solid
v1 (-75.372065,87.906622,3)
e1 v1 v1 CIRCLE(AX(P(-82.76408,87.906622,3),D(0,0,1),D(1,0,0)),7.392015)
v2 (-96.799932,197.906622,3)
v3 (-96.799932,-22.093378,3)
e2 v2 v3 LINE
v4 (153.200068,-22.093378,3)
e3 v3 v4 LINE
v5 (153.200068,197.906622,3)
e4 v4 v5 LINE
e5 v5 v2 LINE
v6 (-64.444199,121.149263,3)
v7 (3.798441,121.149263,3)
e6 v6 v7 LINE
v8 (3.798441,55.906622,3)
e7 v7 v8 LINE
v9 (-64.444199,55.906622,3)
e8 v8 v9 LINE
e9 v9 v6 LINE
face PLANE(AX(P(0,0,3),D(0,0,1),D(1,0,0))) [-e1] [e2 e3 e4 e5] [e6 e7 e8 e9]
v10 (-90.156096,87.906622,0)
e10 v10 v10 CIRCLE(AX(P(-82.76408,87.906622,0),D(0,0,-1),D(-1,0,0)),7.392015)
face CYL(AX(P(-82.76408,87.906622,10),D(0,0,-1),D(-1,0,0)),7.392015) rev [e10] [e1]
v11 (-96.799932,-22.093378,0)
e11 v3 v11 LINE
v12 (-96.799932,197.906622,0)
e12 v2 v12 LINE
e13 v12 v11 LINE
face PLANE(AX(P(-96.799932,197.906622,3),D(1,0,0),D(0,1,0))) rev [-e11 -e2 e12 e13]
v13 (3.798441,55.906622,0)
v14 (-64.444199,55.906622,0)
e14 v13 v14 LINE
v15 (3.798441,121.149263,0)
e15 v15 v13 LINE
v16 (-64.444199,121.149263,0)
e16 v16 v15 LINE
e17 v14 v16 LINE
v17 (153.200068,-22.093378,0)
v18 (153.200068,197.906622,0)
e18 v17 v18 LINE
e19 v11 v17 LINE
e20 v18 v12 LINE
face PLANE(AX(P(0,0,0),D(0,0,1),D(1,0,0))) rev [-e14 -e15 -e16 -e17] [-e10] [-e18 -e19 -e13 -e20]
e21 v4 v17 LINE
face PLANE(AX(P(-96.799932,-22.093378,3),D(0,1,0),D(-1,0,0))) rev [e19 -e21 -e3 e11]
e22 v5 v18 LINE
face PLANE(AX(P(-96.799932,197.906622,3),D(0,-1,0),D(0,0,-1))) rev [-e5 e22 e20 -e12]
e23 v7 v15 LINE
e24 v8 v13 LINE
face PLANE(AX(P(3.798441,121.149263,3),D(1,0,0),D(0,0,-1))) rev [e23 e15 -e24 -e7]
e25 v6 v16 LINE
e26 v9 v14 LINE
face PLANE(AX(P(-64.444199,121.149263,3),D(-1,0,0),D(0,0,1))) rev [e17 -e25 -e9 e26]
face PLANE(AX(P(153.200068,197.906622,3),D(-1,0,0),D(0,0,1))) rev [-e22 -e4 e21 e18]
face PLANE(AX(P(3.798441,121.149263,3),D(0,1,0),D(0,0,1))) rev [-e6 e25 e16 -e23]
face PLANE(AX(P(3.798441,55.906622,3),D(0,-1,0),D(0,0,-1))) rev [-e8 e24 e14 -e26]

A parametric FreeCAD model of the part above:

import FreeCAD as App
import Part
import Sketcher

V = App.Vector


def add_polygon(sketch, points):
    """Adds a closed chain of lines whose ends are joined by coincident constraints."""
    first, n = sketch.GeometryCount, len(points)
    for a, b in zip(points, points[1:] + points[:1]):
        sketch.addGeometry(Part.LineSegment(App.Vector(*a, 0), App.Vector(*b, 0)), False)
    for i in range(n):
        sketch.addConstraint(Sketcher.Constraint("Coincident", first + i, 2, first + (i + 1) % n, 1))

doc = App.newDocument("Part")
body = doc.addObject("PartDesign::Body", "Body")

# Sketch on XY plane
sketch1 = body.newObject("Sketcher::SketchObject", "Sketch")
sketch1.AttachmentSupport = (doc.getObject("XY_Plane"), [""])
sketch1.MapMode = "FlatFace"
add_polygon(sketch1, [(-97, 198), (-97, -22), (153, -22), (153, 198)])  # lines 0-3
sketch1.addConstraint([
    Sketcher.Constraint("Vertical", 0),
    Sketcher.Constraint("Horizontal", 1),
    Sketcher.Constraint("Vertical", 2),
    Sketcher.Constraint("Horizontal", 3),
    Sketcher.Constraint("DistanceX", 1, 1, 1, 2, 250.0),
    Sketcher.Constraint("DistanceY", 0, 2, 0, 1, 220.0),
    Sketcher.Constraint("DistanceX", 0, 2, -1, 1, 96.799932),
    Sketcher.Constraint("DistanceY", 0, 2, -1, 1, 22.093378),
])
pad1 = body.newObject("PartDesign::Pad", "Pad")
pad1.Profile = sketch1
pad1.Length = 3

# Sketch on XY plane
sketch2 = body.newObject("Sketcher::SketchObject", "Sketch001")
sketch2.AttachmentSupport = (doc.getObject("XY_Plane"), [""])
sketch2.MapMode = "FlatFace"
add_polygon(sketch2, [(4, 121), (4, 56), (-64, 56), (-64, 121)])  # lines 0-3
sketch2.addConstraint([
    Sketcher.Constraint("Vertical", 0),
    Sketcher.Constraint("Horizontal", 1),
    Sketcher.Constraint("Vertical", 2),
    Sketcher.Constraint("Horizontal", 3),
    Sketcher.Constraint("DistanceX", 1, 2, 1, 1, 68.242641),
    Sketcher.Constraint("DistanceY", 0, 2, 0, 1, 65.242641),
    Sketcher.Constraint("DistanceX", 1, 2, -1, 1, 64.444199),
    Sketcher.Constraint("DistanceY", -1, 1, 0, 2, 55.906622),
])
pocket1 = body.newObject("PartDesign::Pocket", "Pocket")
pocket1.Profile = sketch2
pocket1.Length = 3
pocket1.Reversed = True

# Sketch on XY plane
sketch3 = body.newObject("Sketcher::SketchObject", "Sketch002")
sketch3.AttachmentSupport = (doc.getObject("XY_Plane"), [""])
sketch3.MapMode = "FlatFace"
sketch3.addGeometry(Part.Circle(V(-83, 88, 0), V(0, 0, 1), 7), False)
sketch3.addConstraint([
    Sketcher.Constraint("Diameter", 0, 14.784031),
    Sketcher.Constraint("DistanceX", 0, 3, -1, 1, 82.76408),
    Sketcher.Constraint("DistanceY", -1, 1, 0, 3, 87.906622),
])
pocket2 = body.newObject("PartDesign::Pocket", "Pocket001")
pocket2.Profile = sketch3
pocket2.Length = 10
pocket2.Reversed = True

doc.recompute()
